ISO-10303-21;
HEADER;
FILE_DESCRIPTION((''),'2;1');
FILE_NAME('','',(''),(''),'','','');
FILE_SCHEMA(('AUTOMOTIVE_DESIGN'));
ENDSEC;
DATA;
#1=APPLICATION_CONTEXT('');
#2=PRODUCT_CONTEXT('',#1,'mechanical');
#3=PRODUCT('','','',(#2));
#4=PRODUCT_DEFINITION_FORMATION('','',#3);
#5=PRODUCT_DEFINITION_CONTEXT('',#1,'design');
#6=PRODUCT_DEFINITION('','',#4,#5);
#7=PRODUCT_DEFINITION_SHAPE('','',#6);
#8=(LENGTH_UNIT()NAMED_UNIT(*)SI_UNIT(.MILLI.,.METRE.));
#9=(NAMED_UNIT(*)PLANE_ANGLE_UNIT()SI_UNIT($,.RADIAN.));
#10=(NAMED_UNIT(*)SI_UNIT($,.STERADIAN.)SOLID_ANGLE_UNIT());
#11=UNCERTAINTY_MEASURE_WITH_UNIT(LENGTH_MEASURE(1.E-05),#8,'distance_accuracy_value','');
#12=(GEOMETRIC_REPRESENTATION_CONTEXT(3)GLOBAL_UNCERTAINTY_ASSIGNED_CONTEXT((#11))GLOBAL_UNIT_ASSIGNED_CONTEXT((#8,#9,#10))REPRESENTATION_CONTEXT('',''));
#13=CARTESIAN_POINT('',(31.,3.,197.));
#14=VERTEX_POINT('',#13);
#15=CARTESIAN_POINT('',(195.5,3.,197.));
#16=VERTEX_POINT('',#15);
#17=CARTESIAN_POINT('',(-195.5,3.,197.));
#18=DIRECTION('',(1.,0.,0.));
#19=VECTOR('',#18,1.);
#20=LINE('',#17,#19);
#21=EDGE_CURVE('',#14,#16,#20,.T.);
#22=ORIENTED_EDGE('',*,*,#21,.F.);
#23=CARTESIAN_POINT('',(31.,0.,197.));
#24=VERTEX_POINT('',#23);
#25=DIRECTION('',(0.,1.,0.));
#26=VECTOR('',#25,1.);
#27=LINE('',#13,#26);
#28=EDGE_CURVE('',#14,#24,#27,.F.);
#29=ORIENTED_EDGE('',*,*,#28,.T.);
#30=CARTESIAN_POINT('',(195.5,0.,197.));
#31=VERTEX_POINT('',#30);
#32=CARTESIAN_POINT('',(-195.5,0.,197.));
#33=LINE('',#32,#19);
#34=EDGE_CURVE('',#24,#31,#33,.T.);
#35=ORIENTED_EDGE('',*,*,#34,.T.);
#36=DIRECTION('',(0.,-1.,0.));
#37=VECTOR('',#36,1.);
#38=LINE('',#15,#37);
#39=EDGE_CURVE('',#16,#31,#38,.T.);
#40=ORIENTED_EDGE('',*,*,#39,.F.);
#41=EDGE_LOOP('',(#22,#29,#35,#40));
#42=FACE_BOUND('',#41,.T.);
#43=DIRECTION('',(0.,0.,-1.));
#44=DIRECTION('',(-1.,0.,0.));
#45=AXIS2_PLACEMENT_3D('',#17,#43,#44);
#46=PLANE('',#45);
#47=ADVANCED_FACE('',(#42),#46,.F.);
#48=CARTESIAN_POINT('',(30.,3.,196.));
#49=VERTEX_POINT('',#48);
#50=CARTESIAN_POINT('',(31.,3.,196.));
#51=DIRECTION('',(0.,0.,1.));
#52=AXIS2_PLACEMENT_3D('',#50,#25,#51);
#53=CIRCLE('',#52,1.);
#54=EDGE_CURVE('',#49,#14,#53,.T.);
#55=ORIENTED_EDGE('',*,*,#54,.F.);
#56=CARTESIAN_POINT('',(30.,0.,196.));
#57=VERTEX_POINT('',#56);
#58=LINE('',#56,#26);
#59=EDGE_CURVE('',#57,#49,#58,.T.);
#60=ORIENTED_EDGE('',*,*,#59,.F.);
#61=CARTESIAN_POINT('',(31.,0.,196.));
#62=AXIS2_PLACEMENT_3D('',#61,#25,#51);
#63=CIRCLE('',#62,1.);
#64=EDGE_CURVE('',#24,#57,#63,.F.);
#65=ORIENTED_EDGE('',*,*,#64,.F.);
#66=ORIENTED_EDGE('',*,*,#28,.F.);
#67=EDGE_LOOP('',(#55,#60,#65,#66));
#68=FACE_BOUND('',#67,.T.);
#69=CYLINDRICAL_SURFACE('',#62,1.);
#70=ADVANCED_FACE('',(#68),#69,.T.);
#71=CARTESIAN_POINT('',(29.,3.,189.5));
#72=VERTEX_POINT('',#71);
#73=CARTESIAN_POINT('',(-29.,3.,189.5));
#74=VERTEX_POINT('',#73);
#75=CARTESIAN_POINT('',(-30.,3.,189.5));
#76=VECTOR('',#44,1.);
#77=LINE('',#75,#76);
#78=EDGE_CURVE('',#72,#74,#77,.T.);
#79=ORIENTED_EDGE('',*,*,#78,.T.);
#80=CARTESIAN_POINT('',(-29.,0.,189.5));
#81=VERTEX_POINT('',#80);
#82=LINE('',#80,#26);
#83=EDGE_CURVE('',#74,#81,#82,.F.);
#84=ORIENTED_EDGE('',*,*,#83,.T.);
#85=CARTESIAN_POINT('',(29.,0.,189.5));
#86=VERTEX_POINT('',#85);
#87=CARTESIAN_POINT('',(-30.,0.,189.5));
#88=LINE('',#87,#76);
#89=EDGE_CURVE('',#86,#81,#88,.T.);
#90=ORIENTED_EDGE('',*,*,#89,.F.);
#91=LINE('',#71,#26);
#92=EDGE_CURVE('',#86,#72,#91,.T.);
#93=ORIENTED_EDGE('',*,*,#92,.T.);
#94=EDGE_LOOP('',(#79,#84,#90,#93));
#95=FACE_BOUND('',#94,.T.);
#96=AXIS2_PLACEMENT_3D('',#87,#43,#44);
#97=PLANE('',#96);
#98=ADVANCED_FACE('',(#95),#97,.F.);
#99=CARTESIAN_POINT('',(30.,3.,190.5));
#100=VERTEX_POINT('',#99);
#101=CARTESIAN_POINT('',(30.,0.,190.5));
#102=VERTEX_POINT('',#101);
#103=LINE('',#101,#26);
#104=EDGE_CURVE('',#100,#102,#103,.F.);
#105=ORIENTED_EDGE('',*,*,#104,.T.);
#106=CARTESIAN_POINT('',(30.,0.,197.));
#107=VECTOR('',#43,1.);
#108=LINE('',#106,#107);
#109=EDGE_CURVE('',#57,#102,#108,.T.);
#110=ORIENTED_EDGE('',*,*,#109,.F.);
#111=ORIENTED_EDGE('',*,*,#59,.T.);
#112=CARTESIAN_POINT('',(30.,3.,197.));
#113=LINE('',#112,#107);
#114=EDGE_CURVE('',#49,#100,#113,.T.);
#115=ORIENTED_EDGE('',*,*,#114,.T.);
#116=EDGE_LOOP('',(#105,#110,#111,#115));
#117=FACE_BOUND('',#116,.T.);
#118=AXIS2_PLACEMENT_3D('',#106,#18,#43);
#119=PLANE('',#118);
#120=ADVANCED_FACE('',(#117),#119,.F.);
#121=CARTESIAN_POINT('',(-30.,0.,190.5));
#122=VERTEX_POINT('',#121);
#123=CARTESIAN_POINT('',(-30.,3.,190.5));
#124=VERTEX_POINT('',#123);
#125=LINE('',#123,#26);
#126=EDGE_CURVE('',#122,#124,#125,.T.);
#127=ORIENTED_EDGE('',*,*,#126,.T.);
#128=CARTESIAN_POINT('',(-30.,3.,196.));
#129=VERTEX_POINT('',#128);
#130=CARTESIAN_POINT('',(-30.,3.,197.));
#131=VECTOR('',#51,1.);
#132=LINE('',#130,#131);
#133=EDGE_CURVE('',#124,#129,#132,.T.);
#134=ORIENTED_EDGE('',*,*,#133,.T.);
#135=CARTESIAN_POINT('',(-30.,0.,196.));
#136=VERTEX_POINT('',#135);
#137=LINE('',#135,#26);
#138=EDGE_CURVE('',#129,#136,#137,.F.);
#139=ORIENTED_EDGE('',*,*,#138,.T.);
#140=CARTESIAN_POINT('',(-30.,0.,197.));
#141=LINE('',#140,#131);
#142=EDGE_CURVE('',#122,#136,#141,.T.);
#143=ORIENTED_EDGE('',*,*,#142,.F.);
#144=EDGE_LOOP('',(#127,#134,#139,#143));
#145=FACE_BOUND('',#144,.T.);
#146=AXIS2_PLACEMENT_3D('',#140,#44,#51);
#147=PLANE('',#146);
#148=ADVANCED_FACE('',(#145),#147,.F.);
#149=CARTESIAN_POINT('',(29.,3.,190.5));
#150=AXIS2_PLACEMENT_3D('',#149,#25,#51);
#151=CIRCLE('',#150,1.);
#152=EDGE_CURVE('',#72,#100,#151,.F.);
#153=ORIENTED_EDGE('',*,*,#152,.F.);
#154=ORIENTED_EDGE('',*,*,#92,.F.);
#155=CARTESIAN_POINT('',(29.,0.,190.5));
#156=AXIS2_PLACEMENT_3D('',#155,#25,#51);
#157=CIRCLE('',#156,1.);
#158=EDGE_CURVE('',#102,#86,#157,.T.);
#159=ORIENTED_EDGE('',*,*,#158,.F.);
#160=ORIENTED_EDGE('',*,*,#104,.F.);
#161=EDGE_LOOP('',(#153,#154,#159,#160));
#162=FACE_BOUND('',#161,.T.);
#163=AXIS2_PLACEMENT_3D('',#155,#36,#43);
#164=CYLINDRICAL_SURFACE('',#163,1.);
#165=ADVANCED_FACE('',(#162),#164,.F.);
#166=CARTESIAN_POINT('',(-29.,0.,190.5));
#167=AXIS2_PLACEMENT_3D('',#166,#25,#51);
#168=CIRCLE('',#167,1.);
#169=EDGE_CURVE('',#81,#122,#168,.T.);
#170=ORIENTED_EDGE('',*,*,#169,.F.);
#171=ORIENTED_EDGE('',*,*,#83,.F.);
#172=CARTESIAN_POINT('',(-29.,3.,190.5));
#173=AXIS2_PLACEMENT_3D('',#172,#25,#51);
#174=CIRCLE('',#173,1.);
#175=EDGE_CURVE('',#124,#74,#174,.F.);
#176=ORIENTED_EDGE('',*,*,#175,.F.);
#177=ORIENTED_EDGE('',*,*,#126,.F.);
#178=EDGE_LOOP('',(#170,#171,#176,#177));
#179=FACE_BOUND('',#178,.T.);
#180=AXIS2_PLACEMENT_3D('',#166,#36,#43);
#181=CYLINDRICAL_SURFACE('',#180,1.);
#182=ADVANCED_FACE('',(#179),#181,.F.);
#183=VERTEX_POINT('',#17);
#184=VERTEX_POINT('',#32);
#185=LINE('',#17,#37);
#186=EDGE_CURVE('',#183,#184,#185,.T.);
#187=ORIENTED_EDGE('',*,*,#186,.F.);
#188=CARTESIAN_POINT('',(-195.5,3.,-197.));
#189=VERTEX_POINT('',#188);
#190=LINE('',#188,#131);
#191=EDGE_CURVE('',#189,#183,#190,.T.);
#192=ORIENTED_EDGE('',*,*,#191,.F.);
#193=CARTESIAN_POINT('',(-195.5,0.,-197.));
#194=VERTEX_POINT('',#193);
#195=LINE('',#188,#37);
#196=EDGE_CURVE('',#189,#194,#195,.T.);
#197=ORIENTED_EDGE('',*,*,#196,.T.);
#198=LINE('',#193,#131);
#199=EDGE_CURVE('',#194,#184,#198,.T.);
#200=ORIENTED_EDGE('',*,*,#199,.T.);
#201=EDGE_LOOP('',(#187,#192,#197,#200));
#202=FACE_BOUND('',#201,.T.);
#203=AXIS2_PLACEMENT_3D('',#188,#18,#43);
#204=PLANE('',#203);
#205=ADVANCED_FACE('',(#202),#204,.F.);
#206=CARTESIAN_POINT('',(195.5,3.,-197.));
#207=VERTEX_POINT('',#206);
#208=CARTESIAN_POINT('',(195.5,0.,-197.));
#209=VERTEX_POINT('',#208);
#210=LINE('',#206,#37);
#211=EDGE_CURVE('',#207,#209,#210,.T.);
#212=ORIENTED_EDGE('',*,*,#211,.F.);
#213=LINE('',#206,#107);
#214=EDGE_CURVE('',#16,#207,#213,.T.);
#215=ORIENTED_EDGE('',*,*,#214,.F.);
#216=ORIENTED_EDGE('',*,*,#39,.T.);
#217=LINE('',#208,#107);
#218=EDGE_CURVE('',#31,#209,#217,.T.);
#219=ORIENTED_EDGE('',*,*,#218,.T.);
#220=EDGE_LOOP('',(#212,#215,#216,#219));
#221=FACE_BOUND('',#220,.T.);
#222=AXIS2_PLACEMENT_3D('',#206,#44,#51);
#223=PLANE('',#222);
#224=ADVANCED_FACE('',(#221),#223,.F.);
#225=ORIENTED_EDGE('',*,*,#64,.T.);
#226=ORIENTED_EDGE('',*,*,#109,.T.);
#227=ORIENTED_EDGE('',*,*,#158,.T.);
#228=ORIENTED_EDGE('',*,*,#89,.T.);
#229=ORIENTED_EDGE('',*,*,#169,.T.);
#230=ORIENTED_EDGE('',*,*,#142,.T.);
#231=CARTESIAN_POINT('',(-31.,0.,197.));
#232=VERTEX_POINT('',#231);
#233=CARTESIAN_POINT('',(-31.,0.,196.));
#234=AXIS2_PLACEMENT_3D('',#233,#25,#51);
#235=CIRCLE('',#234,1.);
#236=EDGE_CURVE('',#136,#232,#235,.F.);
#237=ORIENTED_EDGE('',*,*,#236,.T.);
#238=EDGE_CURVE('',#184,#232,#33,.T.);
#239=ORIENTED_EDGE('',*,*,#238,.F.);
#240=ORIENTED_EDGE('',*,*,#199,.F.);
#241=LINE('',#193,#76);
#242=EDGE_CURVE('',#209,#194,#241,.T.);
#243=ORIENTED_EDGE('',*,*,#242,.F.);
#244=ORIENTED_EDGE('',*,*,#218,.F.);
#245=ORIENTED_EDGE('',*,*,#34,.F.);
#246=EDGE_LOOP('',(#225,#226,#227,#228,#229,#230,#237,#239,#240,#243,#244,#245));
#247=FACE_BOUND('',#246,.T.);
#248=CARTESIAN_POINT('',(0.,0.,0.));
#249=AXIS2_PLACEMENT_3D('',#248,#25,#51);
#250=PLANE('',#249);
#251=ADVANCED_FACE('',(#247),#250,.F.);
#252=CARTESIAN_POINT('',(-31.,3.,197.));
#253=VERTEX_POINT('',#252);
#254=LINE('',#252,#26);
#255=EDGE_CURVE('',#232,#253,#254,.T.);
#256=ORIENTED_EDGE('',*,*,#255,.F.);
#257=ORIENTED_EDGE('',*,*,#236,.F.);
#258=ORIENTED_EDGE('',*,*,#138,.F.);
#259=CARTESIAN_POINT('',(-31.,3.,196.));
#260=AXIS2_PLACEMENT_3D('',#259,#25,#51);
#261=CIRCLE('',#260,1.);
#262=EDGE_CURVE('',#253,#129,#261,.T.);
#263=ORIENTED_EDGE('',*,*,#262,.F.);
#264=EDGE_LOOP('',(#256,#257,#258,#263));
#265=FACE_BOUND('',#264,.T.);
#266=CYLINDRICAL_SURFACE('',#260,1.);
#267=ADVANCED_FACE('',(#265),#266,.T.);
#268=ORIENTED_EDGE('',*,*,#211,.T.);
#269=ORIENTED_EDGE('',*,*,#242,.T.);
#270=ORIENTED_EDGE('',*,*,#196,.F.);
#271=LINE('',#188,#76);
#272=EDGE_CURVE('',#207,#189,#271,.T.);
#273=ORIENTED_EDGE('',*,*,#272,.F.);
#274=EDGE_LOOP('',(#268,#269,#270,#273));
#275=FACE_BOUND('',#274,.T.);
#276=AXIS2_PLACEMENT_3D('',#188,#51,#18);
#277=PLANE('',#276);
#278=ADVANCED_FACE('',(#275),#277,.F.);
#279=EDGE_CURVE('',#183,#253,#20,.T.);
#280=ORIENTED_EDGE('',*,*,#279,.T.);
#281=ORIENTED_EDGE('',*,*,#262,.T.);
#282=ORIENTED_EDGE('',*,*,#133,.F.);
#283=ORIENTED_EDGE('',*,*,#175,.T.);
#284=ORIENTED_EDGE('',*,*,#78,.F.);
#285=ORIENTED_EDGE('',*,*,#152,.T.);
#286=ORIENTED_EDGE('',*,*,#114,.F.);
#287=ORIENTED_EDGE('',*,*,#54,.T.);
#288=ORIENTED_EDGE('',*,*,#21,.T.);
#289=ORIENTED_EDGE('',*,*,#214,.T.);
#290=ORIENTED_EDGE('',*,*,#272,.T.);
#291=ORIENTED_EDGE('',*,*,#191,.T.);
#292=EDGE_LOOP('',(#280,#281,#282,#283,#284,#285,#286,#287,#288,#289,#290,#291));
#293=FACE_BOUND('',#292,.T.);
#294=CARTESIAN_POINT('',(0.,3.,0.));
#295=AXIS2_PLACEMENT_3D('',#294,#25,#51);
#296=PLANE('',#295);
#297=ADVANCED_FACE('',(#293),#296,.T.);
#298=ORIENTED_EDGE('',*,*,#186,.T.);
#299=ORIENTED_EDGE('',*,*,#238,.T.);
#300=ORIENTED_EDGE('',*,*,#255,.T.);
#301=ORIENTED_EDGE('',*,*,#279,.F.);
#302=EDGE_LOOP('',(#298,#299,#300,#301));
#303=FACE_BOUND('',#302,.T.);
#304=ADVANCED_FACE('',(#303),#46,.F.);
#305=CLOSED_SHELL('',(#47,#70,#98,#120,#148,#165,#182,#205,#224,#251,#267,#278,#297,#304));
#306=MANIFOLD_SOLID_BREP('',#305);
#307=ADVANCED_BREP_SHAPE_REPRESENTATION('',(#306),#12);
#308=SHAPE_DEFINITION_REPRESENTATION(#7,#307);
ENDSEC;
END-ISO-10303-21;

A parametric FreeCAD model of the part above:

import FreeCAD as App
import Part
import Sketcher
from FreeCAD import Vector


def edges_at(feature, points):
    """Names of the edges that pass closest to the given points."""
    edges = feature.Shape.Edges
    near = lambda p: min(range(len(edges)), key=lambda i: edges[i].distToShape(Part.Vertex(*p))[0])
    return sorted({f"Edge{near(p) + 1}" for p in points})

doc = App.newDocument("Part")
body = doc.addObject("PartDesign::Body", "Body")

sketch1 = body.newObject("Sketcher::SketchObject", "Sketch")
sketch1.AttachmentSupport = (doc.getObject("XZ_Plane"), [""])
sketch1.MapMode = "FlatFace"
sketch1.addGeometry(Part.LineSegment(Vector(-196, -197, 0), Vector(-196, 197, 0)), False)
sketch1.addGeometry(Part.LineSegment(Vector(-196, 197, 0), Vector(196, 197, 0)), False)
sketch1.addGeometry(Part.LineSegment(Vector(196, 197, 0), Vector(196, -197, 0)), False)
sketch1.addGeometry(Part.LineSegment(Vector(196, -197, 0), Vector(-196, -197, 0)), False)
sketch1.addConstraint(Sketcher.Constraint("Coincident", 0, 2, 1, 1))
sketch1.addConstraint(Sketcher.Constraint("Coincident", 1, 2, 2, 1))
sketch1.addConstraint(Sketcher.Constraint("Coincident", 2, 2, 3, 1))
sketch1.addConstraint(Sketcher.Constraint("Coincident", 3, 2, 0, 1))
sketch1.addConstraint(Sketcher.Constraint("Vertical", 0))
sketch1.addConstraint(Sketcher.Constraint("Horizontal", 1))
sketch1.addConstraint(Sketcher.Constraint("Vertical", 2))
sketch1.addConstraint(Sketcher.Constraint("Horizontal", 3))
sketch1.addConstraint(Sketcher.Constraint("Symmetric", 0, 2, 2, 2, -1, 1))
sketch1.addConstraint(Sketcher.Constraint("DistanceX", 1, 1, 1, 2, 391.0))
sketch1.addConstraint(Sketcher.Constraint("DistanceY", 0, 1, 0, 2, 394.0))
pad1 = body.newObject("PartDesign::Pad", "Pad")
pad1.Profile = sketch1
pad1.Length = 3
pad1.Reversed = True

sketch2 = body.newObject("Sketcher::SketchObject", "Sketch001")
sketch2.AttachmentSupport = (doc.getObject("XZ_Plane"), [""])
sketch2.MapMode = "FlatFace"
sketch2.AttachmentOffset = App.Placement(Vector(0, 0, -3), App.Rotation())
sketch2.addGeometry(Part.LineSegment(Vector(-30, 190, 0), Vector(-30, 197, 0)), False)
sketch2.addGeometry(Part.LineSegment(Vector(-30, 197, 0), Vector(30, 197, 0)), False)
sketch2.addGeometry(Part.LineSegment(Vector(30, 197, 0), Vector(30, 190, 0)), False)
sketch2.addGeometry(Part.LineSegment(Vector(30, 190, 0), Vector(-30, 190, 0)), False)
sketch2.addConstraint(Sketcher.Constraint("Coincident", 0, 2, 1, 1))
sketch2.addConstraint(Sketcher.Constraint("Coincident", 1, 2, 2, 1))
sketch2.addConstraint(Sketcher.Constraint("Coincident", 2, 2, 3, 1))
sketch2.addConstraint(Sketcher.Constraint("Coincident", 3, 2, 0, 1))
sketch2.addConstraint(Sketcher.Constraint("Vertical", 0))
sketch2.addConstraint(Sketcher.Constraint("Horizontal", 1))
sketch2.addConstraint(Sketcher.Constraint("Vertical", 2))
sketch2.addConstraint(Sketcher.Constraint("Horizontal", 3))
sketch2.addConstraint(Sketcher.Constraint("DistanceX", 1, 1, 1, 2, 60.0))
sketch2.addConstraint(Sketcher.Constraint("DistanceY", 0, 1, 0, 2, 7.5))
sketch2.addConstraint(Sketcher.Constraint("DistanceX", 0, 2, -1, 1, 30.0))
sketch2.addConstraint(Sketcher.Constraint("DistanceY", -1, 1, 0, 2, 197.0))
pocket1 = body.newObject("PartDesign::Pocket", "Pocket")
pocket1.Profile = sketch2
pocket1.Type = "ThroughAll"
pocket1.Reversed = True
doc.recompute()

fillet = body.newObject("PartDesign::Fillet", "Fillet")
fillet.Base = (pocket1, edges_at(pocket1, [
    (-30, 1.5, 197),
    (-30, 1.5, 189.5),
    (30, 1.5, 189.5),
    (30, 1.5, 197),
]))
fillet.Radius = 1

doc.recompute()
